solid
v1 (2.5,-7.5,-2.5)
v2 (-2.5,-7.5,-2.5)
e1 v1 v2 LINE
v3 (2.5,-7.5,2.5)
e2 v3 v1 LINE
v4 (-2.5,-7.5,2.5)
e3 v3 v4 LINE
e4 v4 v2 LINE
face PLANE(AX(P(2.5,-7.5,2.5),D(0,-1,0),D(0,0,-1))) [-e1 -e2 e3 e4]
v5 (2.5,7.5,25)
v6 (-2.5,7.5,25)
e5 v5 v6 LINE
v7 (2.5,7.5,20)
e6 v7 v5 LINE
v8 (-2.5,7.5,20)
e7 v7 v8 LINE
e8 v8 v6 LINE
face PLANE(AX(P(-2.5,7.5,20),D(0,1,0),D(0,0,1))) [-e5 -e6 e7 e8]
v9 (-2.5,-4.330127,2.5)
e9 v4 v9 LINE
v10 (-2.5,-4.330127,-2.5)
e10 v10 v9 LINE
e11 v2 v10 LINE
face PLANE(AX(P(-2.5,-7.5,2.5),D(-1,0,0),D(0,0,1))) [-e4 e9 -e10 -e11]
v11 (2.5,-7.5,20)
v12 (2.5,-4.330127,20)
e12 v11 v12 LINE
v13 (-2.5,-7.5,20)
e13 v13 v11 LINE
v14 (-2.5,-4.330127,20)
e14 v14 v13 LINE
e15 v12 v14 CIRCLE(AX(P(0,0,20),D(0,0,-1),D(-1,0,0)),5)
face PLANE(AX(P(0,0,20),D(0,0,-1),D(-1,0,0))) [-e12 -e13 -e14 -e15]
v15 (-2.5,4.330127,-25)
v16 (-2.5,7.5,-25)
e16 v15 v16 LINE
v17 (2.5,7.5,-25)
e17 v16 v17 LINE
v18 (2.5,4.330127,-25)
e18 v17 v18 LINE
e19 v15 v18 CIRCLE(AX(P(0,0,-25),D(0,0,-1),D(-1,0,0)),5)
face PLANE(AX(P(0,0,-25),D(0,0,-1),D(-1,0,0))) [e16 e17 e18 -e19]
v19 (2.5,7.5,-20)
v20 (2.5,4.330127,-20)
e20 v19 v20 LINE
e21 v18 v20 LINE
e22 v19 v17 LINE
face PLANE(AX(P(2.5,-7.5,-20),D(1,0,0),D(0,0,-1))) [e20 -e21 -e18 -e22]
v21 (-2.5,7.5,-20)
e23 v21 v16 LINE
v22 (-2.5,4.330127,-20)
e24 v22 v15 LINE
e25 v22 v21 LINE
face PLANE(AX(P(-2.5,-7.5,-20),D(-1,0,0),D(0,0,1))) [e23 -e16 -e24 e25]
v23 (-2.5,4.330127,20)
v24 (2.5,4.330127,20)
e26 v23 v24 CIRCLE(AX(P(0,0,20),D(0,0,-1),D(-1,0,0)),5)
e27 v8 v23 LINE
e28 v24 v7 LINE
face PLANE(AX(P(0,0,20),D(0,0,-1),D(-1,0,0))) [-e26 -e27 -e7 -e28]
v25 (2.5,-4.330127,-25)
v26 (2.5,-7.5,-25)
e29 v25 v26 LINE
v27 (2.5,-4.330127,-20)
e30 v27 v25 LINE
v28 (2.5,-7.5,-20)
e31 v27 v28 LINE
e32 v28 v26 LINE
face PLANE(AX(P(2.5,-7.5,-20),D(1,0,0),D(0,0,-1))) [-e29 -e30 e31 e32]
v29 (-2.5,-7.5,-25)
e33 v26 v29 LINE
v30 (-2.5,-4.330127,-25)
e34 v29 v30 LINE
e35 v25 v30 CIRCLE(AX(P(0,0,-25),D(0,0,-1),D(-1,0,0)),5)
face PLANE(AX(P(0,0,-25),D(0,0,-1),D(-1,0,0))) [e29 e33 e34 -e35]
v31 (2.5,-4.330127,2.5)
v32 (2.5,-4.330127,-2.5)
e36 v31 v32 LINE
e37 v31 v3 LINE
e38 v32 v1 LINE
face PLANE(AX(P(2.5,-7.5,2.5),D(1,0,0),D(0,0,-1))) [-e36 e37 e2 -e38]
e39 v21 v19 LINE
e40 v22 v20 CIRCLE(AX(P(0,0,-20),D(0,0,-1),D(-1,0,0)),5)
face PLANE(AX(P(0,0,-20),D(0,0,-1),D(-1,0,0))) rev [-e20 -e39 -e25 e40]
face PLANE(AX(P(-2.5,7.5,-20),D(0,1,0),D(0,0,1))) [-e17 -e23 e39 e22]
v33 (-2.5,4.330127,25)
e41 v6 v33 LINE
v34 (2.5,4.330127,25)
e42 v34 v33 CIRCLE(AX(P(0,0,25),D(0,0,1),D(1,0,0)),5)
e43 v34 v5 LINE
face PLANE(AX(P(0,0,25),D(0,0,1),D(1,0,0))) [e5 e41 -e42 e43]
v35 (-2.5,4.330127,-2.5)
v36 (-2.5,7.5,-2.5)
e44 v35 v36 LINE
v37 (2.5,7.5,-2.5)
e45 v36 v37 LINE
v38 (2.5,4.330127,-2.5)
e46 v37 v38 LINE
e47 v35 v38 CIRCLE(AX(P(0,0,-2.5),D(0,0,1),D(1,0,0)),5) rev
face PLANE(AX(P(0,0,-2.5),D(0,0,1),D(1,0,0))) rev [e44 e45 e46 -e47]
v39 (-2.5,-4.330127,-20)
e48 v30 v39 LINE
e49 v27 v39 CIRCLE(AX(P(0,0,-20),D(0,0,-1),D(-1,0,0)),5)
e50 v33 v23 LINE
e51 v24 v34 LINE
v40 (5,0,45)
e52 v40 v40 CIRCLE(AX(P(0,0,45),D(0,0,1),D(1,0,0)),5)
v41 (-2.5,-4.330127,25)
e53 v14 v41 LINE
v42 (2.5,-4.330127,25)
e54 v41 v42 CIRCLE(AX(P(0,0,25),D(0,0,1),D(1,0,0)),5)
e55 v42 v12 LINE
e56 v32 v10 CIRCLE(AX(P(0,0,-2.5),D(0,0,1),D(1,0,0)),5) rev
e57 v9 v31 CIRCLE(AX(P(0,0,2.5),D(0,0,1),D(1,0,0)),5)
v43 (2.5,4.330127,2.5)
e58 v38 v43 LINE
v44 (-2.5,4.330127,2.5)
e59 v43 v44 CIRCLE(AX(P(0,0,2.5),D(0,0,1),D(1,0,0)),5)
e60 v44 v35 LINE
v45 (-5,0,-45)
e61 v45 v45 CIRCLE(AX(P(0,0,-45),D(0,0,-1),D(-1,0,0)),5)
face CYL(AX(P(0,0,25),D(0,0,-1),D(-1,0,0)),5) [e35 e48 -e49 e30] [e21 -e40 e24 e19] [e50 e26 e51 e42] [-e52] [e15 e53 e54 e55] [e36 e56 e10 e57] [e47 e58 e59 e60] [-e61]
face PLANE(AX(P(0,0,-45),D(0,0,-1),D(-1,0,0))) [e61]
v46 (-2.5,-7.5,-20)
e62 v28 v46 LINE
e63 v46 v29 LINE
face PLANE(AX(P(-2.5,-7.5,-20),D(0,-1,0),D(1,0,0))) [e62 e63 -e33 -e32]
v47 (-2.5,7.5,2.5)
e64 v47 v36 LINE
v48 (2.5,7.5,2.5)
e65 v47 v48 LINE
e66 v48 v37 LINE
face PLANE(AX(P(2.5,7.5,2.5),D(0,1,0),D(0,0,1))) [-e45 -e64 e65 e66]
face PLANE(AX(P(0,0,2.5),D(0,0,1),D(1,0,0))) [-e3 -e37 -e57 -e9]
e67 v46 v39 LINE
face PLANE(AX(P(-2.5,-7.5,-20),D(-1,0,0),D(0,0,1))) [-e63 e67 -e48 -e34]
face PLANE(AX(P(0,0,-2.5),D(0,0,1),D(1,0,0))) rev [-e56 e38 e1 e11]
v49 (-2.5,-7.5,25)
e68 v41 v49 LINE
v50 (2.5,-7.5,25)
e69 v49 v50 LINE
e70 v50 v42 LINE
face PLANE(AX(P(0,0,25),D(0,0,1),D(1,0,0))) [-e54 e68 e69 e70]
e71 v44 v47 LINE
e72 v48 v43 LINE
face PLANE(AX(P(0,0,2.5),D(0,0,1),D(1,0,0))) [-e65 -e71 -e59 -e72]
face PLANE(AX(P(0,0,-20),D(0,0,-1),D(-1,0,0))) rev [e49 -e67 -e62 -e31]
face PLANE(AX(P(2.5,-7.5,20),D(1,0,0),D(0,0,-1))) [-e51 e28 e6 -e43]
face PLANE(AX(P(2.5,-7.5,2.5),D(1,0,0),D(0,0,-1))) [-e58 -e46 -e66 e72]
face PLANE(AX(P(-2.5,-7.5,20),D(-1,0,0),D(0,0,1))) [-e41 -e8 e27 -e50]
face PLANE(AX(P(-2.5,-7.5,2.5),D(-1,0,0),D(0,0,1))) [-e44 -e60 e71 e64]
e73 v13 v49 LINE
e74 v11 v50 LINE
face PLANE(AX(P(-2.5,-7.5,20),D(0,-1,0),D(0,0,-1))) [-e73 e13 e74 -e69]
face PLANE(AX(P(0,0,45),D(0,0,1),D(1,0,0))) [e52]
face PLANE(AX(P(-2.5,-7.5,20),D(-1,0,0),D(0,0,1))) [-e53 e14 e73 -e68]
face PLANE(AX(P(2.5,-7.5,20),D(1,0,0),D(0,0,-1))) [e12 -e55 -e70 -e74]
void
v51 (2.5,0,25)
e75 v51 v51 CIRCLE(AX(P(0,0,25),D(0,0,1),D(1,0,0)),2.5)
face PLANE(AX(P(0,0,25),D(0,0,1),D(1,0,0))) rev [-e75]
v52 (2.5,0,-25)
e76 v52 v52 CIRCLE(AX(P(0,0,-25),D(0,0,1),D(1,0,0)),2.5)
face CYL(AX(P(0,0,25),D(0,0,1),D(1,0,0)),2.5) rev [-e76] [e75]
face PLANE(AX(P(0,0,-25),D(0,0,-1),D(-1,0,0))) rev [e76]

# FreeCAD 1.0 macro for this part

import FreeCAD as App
import Part
import Sketcher
Q = App.Units.Quantity


def add_polygon(sketch, points):
    """Adds a closed chain of lines whose ends are joined by coincident constraints."""
    first, n = sketch.GeometryCount, len(points)
    for a, b in zip(points, points[1:] + points[:1]):
        sketch.addGeometry(Part.LineSegment(App.Vector(*a, 0), App.Vector(*b, 0)), False)
    for i in range(n):
        sketch.addConstraint(Sketcher.Constraint("Coincident", first + i, 2, first + (i + 1) % n, 1))

doc = App.newDocument("Part")
body = doc.addObject("PartDesign::Body", "Body")

# Sketch on XY plane
sketch1 = doc.addObject("Sketcher::SketchObject", "Sketch")
body.addObject(sketch1)
sketch1.AttachmentSupport = (doc.XY_Plane, [""])
sketch1.MapMode = "FlatFace"
sketch1.addGeometry(Part.Circle(App.Vector(0, 0, 0), App.Vector(0, 0, 1), 5), False)
sketch1.addConstraint([
    Sketcher.Constraint("Coincident", 0, 3, -1, 1),
    Sketcher.Constraint("Diameter", 0, Q("10 mm")),
])
pad1 = doc.addObject("PartDesign::Pad", "Pad")
body.addObject(pad1)
pad1.Profile = sketch1
pad1.Length = 25

# Sketch on XY plane
sketch2 = doc.addObject("Sketcher::SketchObject", "Sketch001")
body.addObject(sketch2)
sketch2.AttachmentSupport = (doc.XY_Plane, [""])
sketch2.MapMode = "FlatFace"
sketch2.AttachmentOffset = App.Placement(App.Vector(0, 0, 25), App.Rotation())
add_polygon(sketch2, [(-2, 8), (-2, -8), (2, -8), (2, 8)])  # lines 0-3
sketch2.addConstraint([
    Sketcher.Constraint("Vertical", 0),
    Sketcher.Constraint("Horizontal", 1),
    Sketcher.Constraint("Vertical", 2),
    Sketcher.Constraint("Horizontal", 3),
    Sketcher.Constraint("Symmetric", 0, 2, 2, 2, -1, 1),
    Sketcher.Constraint("DistanceX", 1, 1, 1, 2, Q("5 mm")),
    Sketcher.Constraint("DistanceY", 0, 2, 0, 1, Q("15 mm")),
])
pad2 = doc.addObject("PartDesign::Pad", "Pad001")
body.addObject(pad2)
pad2.Profile = sketch2
pad2.Length = 5
pad2.Reversed = True

# Sketch on XY plane
sketch3 = doc.addObject("Sketcher::SketchObject", "Sketch002")
body.addObject(sketch3)
sketch3.AttachmentSupport = (doc.XY_Plane, [""])
sketch3.MapMode = "FlatFace"
add_polygon(sketch3, [(2, 8), (2, -8), (-2, -8), (-2, 8)])  # lines 0-3
sketch3.addConstraint([
    Sketcher.Constraint("Vertical", 0),
    Sketcher.Constraint("Horizontal", 1),
    Sketcher.Constraint("Vertical", 2),
    Sketcher.Constraint("Horizontal", 3),
    Sketcher.Constraint("Symmetric", 0, 2, 2, 2, -1, 1),
    Sketcher.Constraint("DistanceX", 1, 2, 1, 1, Q("5 mm")),
    Sketcher.Constraint("DistanceY", 0, 2, 0, 1, Q("15 mm")),
])
pad3 = doc.addObject("PartDesign::Pad", "Pad002")
body.addObject(pad3)
pad3.Profile = sketch3
pad3.Length = 2.5

# Sketch on XY plane
sketch4 = doc.addObject("Sketcher::SketchObject", "Sketch003")
body.addObject(sketch4)
sketch4.AttachmentSupport = (doc.XY_Plane, [""])
sketch4.MapMode = "FlatFace"
add_polygon(sketch4, [(2, 8), (2, -8), (-2, -8), (-2, 8)])  # lines 0-3
sketch4.addConstraint([
    Sketcher.Constraint("Vertical", 0),
    Sketcher.Constraint("Horizontal", 1),
    Sketcher.Constraint("Vertical", 2),
    Sketcher.Constraint("Horizontal", 3),
    Sketcher.Constraint("Symmetric", 0, 2, 2, 2, -1, 1),
    Sketcher.Constraint("DistanceX", 1, 2, 1, 1, Q("5 mm")),
    Sketcher.Constraint("DistanceY", 0, 2, 0, 1, Q("15 mm")),
])
pad4 = doc.addObject("PartDesign::Pad", "Pad003")
body.addObject(pad4)
pad4.Profile = sketch4
pad4.Length = 2.5
pad4.Reversed = True

# Sketch on XY plane
sketch5 = doc.addObject("Sketcher::SketchObject", "Sketch004")
body.addObject(sketch5)
sketch5.AttachmentSupport = (doc.XY_Plane, [""])
sketch5.MapMode = "FlatFace"
sketch5.AttachmentOffset = App.Placement(App.Vector(0, 0, -25), App.Rotation())
sketch5.addGeometry(Part.Circle(App.Vector(0, 0, 0), App.Vector(0, 0, 1), 5), False)
sketch5.addConstraint([
    Sketcher.Constraint("Coincident", 0, 3, -1, 1),
    Sketcher.Constraint("Diameter", 0, Q("10 mm")),
])
pad5 = doc.addObject("PartDesign::Pad", "Pad004")
body.addObject(pad5)
pad5.Profile = sketch5
pad5.Length = 25

# Sketch on XY plane
sketch6 = doc.addObject("Sketcher::SketchObject", "Sketch005")
body.addObject(sketch6)
sketch6.AttachmentSupport = (doc.XY_Plane, [""])
sketch6.MapMode = "FlatFace"
sketch6.AttachmentOffset = App.Placement(App.Vector(0, 0, -25), App.Rotation())
add_polygon(sketch6, [(2, 8), (2, -8), (-2, -8), (-2, 8)])  # lines 0-3
sketch6.addConstraint([
    Sketcher.Constraint("Vertical", 0),
    Sketcher.Constraint("Horizontal", 1),
    Sketcher.Constraint("Vertical", 2),
    Sketcher.Constraint("Horizontal", 3),
    Sketcher.Constraint("Symmetric", 0, 2, 2, 2, -1, 1),
    Sketcher.Constraint("DistanceX", 1, 2, 1, 1, Q("5 mm")),
    Sketcher.Constraint("DistanceY", 0, 2, 0, 1, Q("15 mm")),
])
pad6 = doc.addObject("PartDesign::Pad", "Pad005")
body.addObject(pad6)
pad6.Profile = sketch6
pad6.Length = 5

# Sketch on XY plane
sketch7 = doc.addObject("Sketcher::SketchObject", "Sketch006")
body.addObject(sketch7)
sketch7.AttachmentSupport = (doc.XY_Plane, [""])
sketch7.MapMode = "FlatFace"
sketch7.AttachmentOffset = App.Placement(App.Vector(0, 0, 25), App.Rotation())
sketch7.addGeometry(Part.Circle(App.Vector(0, 0, 0), App.Vector(0, 0, 1), 2.5), False)
sketch7.addConstraint([
    Sketcher.Constraint("Coincident", 0, 3, -1, 1),
    Sketcher.Constraint("Diameter", 0, Q("5 mm")),
])
doc.recompute()
hole = doc.addObject("PartDesign::Hole", "Hole")
body.addObject(hole)
hole.Profile = sketch7
hole.ThreadType = "None"
hole.Diameter = 5
hole.DepthType = "ThroughAll"

# Sketch on XY plane
sketch8 = doc.addObject("Sketcher::SketchObject", "Sketch007")
body.addObject(sketch8)
sketch8.AttachmentSupport = (doc.XY_Plane, [""])
sketch8.MapMode = "FlatFace"
sketch8.AttachmentOffset = App.Placement(App.Vector(0, 0, -45), App.Rotation())
sketch8.addGeometry(Part.Circle(App.Vector(0, 0, 0), App.Vector(0, 0, 1), 5), False)
sketch8.addConstraint([
    Sketcher.Constraint("Coincident", 0, 3, -1, 1),
    Sketcher.Constraint("Diameter", 0, Q("10 mm")),
])
pad7 = doc.addObject("PartDesign::Pad", "Pad006")
body.addObject(pad7)
pad7.Profile = sketch8
pad7.Length = 20

# Sketch on XY plane
sketch9 = doc.addObject("Sketcher::SketchObject", "Sketch008")
body.addObject(sketch9)
sketch9.AttachmentSupport = (doc.XY_Plane, [""])
sketch9.MapMode = "FlatFace"
sketch9.AttachmentOffset = App.Placement(App.Vector(0, 0, 25), App.Rotation())
sketch9.addGeometry(Part.Circle(App.Vector(0, 0, 0), App.Vector(0, 0, 1), 5), False)
sketch9.addConstraint([
    Sketcher.Constraint("Coincident", 0, 3, -1, 1),
    Sketcher.Constraint("Diameter", 0, Q("10 mm")),
])
pad8 = doc.addObject("PartDesign::Pad", "Pad007")
body.addObject(pad8)
pad8.Profile = sketch9
pad8.Length = 20

doc.recompute()
